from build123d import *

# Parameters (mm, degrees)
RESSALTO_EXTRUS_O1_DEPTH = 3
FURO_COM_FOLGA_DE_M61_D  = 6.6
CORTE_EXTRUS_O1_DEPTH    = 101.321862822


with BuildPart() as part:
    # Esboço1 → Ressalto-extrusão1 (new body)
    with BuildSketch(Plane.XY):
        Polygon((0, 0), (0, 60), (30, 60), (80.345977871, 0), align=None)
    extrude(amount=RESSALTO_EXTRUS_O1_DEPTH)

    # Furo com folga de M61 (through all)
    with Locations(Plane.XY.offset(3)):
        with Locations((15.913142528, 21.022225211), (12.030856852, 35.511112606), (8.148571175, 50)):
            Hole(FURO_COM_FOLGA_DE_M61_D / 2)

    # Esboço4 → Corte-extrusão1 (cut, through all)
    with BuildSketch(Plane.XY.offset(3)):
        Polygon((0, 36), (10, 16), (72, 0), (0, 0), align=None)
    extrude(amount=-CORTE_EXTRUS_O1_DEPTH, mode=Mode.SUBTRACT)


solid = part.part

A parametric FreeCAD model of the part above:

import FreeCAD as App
import Part
import Sketcher
from FreeCAD import Vector
Q = App.Units.Quantity


def add_polygon(sketch, points):
    """Adds a closed chain of lines whose ends are joined by coincident constraints."""
    first, n = sketch.GeometryCount, len(points)
    for a, b in zip(points, points[1:] + points[:1]):
        sketch.addGeometry(Part.LineSegment(App.Vector(*a, 0), App.Vector(*b, 0)), False)
    for i in range(n):
        sketch.addConstraint(Sketcher.Constraint("Coincident", first + i, 2, first + (i + 1) % n, 1))

doc = App.newDocument("Part")
body = doc.addObject("PartDesign::Body", "Body")

sketch1 = doc.addObject("Sketcher::SketchObject", "Sketch")
body.addObject(sketch1)
sketch1.AttachmentSupport = (doc.XY_Plane, [""])
sketch1.MapMode = "FlatFace"
add_polygon(sketch1, [(0, 60), (0, 0), (80.345978, 0), (30, 60)])
sketch1.addConstraint(Sketcher.Constraint("Vertical", 0))
sketch1.addConstraint(Sketcher.Constraint("Horizontal", 1))
sketch1.addConstraint(Sketcher.Constraint("Horizontal", 3))
sketch1.addConstraint(Sketcher.Constraint("Coincident", 0, 2, -1, 1))
sketch1.addConstraint(Sketcher.Constraint("DistanceX", 3, 2, 3, 1, 30.0))
sketch1.addConstraint(Sketcher.Constraint("DistanceY", 0, 2, 0, 1, 60.0))
sketch1.addConstraint(Sketcher.Constraint("Angle", 2, Q("130 deg")))
pad1 = doc.addObject("PartDesign::Pad", "Pad")
body.addObject(pad1)
pad1.Profile = sketch1
pad1.Length = 3

sketch2 = doc.addObject("Sketcher::SketchObject", "Sketch001")
body.addObject(sketch2)
sketch2.AttachmentSupport = (doc.XY_Plane, [""])
sketch2.MapMode = "FlatFace"
sketch2.AttachmentOffset = App.Placement(Vector(0, 0, 3), App.Rotation())
sketch2.addGeometry(Part.Circle(Vector(15.913143, 21.022225, 0), Vector(0, 0, 1), 3.3), False)
sketch2.addGeometry(Part.Circle(Vector(12.030857, 35.511113, 0), Vector(0, 0, 1), 3.3), False)
sketch2.addGeometry(Part.Circle(Vector(8.148571, 50, 0), Vector(0, 0, 1), 3.3), False)
sketch2.addConstraint(Sketcher.Constraint("Equal", 0, 1))
sketch2.addConstraint(Sketcher.Constraint("Equal", 1, 2))
sketch2.addConstraint(Sketcher.Constraint("Diameter", 0, 6.6))
sketch2.addConstraint(Sketcher.Constraint("DistanceY", -1, 1, 2, 3, 50.0))
sketch2.addConstraint(Sketcher.Constraint("DistanceX", -1, 1, 2, 3, 8.148571))
sketch2.addConstraint(Sketcher.Constraint("DistanceX", 2, 3, 0, 3, 7.764571))
sketch2.addConstraint(Sketcher.Constraint("DistanceY", -1, 1, 0, 3, 21.022225))
sketch2.addConstraint(Sketcher.Constraint("DistanceX", -1, 1, 1, 3, 12.030857))
sketch2.addConstraint(Sketcher.Constraint("DistanceY", -1, 1, 1, 3, 35.511113))
doc.recompute()
hole = doc.addObject("PartDesign::Hole", "Hole")
body.addObject(hole)
hole.Profile = sketch2
hole.ThreadType = "None"
hole.Diameter = 6.6
hole.DepthType = "ThroughAll"

sketch3 = doc.addObject("Sketcher::SketchObject", "Sketch002")
body.addObject(sketch3)
sketch3.AttachmentSupport = (doc.XY_Plane, [""])
sketch3.MapMode = "FlatFace"
sketch3.AttachmentOffset = App.Placement(Vector(0, 0, 3), App.Rotation())
add_polygon(sketch3, [(10, 16), (0, 36), (0, 0), (72, 0)])
sketch3.addConstraint(Sketcher.Constraint("Vertical", 1))
sketch3.addConstraint(Sketcher.Constraint("Horizontal", 2))
sketch3.addConstraint(Sketcher.Constraint("Coincident", 1, 2, -1, 1))
sketch3.addConstraint(Sketcher.Constraint("DistanceX", 2, 1, 2, 2, 72.0))
sketch3.addConstraint(Sketcher.Constraint("DistanceY", 1, 2, 1, 1, 36.0))
sketch3.addConstraint(Sketcher.Constraint("DistanceX", -1, 1, 3, 2, 10.0))
sketch3.addConstraint(Sketcher.Constraint("DistanceY", -1, 1, 3, 2, 16.0))
pocket1 = doc.addObject("PartDesign::Pocket", "Pocket")
body.addObject(pocket1)
pocket1.Profile = sketch3
pocket1.Type = "ThroughAll"

doc.recompute()
